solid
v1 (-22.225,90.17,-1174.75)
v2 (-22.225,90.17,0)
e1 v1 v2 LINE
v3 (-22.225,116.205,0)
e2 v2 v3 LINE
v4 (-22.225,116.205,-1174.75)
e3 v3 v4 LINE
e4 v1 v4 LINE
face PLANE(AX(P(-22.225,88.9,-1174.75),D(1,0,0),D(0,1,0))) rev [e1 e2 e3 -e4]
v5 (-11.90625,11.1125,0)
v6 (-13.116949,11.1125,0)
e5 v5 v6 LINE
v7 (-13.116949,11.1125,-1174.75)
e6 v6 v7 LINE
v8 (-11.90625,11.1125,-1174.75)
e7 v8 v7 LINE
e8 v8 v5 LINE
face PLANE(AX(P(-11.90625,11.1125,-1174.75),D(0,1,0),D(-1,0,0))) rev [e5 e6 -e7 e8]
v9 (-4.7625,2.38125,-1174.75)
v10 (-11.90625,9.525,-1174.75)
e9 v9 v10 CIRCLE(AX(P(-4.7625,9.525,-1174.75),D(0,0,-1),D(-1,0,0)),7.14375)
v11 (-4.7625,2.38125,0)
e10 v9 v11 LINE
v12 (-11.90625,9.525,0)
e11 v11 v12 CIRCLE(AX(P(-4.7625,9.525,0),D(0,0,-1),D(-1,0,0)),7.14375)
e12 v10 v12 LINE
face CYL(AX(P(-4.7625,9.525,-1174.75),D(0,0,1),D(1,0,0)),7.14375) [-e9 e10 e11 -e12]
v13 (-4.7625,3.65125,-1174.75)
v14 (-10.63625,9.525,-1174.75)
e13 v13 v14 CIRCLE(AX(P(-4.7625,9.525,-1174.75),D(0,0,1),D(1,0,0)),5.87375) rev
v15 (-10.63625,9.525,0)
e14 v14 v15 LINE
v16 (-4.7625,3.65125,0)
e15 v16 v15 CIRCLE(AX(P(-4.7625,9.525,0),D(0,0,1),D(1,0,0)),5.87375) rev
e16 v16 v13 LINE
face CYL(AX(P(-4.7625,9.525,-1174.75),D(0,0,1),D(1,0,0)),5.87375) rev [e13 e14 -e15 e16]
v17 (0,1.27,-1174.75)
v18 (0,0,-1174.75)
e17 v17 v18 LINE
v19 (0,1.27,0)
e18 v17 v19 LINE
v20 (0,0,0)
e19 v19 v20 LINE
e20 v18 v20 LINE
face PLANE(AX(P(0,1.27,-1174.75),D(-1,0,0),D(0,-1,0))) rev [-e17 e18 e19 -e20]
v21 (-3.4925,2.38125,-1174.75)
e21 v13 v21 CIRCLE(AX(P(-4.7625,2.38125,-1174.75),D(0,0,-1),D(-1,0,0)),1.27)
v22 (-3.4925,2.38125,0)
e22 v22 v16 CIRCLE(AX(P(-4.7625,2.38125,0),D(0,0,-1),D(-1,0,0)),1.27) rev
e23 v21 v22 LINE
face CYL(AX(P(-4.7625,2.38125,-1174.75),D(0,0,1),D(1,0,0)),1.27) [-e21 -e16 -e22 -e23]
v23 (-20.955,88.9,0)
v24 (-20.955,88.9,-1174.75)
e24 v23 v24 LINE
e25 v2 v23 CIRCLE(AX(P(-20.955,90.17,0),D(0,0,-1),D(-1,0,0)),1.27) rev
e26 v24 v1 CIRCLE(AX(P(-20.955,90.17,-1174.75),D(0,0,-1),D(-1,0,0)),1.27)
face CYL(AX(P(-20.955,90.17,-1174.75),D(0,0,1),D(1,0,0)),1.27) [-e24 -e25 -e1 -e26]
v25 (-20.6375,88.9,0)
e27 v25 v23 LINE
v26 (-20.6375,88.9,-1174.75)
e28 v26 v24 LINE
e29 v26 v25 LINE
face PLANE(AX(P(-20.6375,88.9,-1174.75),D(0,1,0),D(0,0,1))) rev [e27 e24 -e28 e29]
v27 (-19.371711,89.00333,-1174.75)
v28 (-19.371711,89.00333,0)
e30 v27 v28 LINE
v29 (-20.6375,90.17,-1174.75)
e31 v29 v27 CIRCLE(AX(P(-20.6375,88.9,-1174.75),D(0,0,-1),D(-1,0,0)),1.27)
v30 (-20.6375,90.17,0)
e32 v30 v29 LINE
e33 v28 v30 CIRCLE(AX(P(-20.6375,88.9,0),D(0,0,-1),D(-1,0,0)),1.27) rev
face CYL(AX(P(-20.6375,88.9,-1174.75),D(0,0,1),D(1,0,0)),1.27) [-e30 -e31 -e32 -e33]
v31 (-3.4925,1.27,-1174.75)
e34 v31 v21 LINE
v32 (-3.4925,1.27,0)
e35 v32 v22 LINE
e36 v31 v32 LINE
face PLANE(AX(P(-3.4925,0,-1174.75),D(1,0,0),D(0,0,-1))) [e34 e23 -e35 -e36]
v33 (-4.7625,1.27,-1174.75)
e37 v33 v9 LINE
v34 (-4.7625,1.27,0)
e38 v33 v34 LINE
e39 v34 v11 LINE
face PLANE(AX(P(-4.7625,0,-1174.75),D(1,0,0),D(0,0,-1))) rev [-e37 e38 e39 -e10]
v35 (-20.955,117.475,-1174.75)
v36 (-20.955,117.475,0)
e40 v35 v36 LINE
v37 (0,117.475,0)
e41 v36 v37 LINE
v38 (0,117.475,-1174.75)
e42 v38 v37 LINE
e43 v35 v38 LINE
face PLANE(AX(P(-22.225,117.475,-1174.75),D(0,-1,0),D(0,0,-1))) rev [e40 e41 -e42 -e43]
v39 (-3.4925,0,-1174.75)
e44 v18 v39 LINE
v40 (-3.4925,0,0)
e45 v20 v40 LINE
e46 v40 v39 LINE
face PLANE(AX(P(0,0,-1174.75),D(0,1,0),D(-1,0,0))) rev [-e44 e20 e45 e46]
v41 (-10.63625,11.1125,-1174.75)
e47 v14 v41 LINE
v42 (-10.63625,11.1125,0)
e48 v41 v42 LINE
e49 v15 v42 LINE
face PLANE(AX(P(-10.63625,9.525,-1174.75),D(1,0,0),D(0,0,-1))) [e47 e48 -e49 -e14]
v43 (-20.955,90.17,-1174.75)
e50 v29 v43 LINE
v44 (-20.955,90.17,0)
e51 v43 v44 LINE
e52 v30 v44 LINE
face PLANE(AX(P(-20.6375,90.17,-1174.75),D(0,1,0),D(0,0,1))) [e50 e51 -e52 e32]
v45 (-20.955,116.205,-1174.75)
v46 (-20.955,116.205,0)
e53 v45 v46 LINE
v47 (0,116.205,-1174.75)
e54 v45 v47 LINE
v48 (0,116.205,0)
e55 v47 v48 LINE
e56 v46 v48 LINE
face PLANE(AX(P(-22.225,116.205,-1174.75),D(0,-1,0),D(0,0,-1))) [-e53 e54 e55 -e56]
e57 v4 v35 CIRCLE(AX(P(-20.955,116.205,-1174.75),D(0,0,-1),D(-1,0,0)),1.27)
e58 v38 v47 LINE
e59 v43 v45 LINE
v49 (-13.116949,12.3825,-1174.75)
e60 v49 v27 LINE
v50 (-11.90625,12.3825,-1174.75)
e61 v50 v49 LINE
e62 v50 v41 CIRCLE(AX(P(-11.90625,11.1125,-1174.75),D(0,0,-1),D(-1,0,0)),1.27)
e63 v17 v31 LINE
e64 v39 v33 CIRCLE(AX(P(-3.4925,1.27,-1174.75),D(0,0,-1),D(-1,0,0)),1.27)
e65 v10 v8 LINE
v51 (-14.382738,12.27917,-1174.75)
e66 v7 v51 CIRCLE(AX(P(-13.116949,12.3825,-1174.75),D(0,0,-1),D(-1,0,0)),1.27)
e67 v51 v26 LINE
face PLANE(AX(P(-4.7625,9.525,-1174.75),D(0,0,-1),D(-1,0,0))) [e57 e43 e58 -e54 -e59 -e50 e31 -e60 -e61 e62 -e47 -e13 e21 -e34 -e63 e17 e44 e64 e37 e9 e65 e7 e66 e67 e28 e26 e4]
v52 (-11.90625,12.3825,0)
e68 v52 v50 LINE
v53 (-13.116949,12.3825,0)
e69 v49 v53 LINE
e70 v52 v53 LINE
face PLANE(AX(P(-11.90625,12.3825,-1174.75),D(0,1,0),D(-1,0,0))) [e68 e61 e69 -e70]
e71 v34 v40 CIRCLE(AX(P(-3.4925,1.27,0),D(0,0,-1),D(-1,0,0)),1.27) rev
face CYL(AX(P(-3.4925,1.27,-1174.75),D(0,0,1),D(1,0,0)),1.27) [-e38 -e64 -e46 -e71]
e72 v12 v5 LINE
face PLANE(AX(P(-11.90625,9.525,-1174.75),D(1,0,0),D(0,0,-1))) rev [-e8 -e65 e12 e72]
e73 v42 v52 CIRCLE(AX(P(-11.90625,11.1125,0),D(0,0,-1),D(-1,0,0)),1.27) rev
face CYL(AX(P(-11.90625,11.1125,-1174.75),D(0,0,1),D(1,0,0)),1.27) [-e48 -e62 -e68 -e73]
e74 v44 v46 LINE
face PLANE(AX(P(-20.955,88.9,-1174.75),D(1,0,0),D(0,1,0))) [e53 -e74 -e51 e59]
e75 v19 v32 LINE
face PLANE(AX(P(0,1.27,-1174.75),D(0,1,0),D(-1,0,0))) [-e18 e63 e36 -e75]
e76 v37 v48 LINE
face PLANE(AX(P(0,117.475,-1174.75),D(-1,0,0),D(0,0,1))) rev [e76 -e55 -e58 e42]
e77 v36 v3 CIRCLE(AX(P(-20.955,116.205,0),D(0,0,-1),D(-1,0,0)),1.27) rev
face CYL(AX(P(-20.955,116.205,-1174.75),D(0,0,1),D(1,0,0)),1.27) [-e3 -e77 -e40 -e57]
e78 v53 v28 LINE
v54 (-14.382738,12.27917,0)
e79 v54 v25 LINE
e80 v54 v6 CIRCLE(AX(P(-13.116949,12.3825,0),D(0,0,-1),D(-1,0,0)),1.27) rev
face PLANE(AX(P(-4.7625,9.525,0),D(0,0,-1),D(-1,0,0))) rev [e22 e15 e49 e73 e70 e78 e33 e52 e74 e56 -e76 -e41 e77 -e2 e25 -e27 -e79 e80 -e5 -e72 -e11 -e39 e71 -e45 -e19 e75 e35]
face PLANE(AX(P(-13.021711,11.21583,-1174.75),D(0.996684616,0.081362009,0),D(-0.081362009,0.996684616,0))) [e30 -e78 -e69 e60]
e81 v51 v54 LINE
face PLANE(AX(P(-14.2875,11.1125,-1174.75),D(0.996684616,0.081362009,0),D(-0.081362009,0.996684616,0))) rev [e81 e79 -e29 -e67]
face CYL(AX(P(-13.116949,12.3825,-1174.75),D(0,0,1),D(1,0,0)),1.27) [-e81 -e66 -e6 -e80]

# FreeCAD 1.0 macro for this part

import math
import FreeCAD as App
import Part
import Sketcher
from FreeCAD import Vector
Q = App.Units.Quantity


def edges_at(feature, points):
    """Names of the edges that pass closest to the given points."""
    edges = feature.Shape.Edges
    near = lambda p: min(range(len(edges)), key=lambda i: edges[i].distToShape(Part.Vertex(*p))[0])
    return sorted({f"Edge{near(p) + 1}" for p in points})

doc = App.newDocument("Part")
body = doc.addObject("PartDesign::Body", "Body")

# Sketch on XY plane
sketch1 = body.newObject("Sketcher::SketchObject", "Sketch")
sketch1.AttachmentSupport = (doc.getObject("XY_Plane"), [""])
sketch1.MapMode = "FlatFace"
sketch1.addGeometry(Part.LineSegment(Vector(-4.8, 0, 0), Vector(0, 0, 0)), False)
sketch1.addGeometry(Part.LineSegment(Vector(0, 0, 0), Vector(0, 1.3, 0)), False)
sketch1.addGeometry(Part.LineSegment(Vector(0, 1.3, 0), Vector(-3.5, 1.3, 0)), False)
sketch1.addGeometry(Part.LineSegment(Vector(-3.5, 1.3, 0), Vector(-3.5, 3.8, 0)), False)
sketch1.addGeometry(Part.ArcOfCircle(Part.Circle(Vector(-4.8, 9.5, 0), Vector(0, 0, 1), 5.9), math.radians(180), math.radians(282)), False)
sketch1.addGeometry(Part.LineSegment(Vector(-10.6, 9.5, 0), Vector(-10.6, 12.4, 0)), False)
sketch1.addGeometry(Part.LineSegment(Vector(-10.6, 12.4, 0), Vector(-13.1, 12.4, 0)), False)
sketch1.addGeometry(Part.LineSegment(Vector(-13.1, 12.4, 0), Vector(-19.5, 90.2, 0)), False)
sketch1.addGeometry(Part.LineSegment(Vector(-19.5, 90.2, 0), Vector(-21, 90.2, 0)), False)
sketch1.addGeometry(Part.LineSegment(Vector(-21, 90.2, 0), Vector(-21, 116.2, 0)), False)
sketch1.addGeometry(Part.LineSegment(Vector(-21, 116.2, 0), Vector(0, 116.2, 0)), False)
sketch1.addGeometry(Part.LineSegment(Vector(0, 116.2, 0), Vector(0, 117.5, 0)), False)
sketch1.addGeometry(Part.LineSegment(Vector(0, 117.5, 0), Vector(-22.2, 117.5, 0)), False)
sketch1.addGeometry(Part.LineSegment(Vector(-22.2, 117.5, 0), Vector(-22.2, 88.9, 0)), False)
sketch1.addGeometry(Part.LineSegment(Vector(-22.2, 88.9, 0), Vector(-20.6, 88.9, 0)), False)
sketch1.addGeometry(Part.LineSegment(Vector(-20.6, 88.9, 0), Vector(-14.3, 11.1, 0)), False)
sketch1.addGeometry(Part.LineSegment(Vector(-14.3, 11.1, 0), Vector(-11.9, 11.1, 0)), False)
sketch1.addGeometry(Part.LineSegment(Vector(-11.9, 11.1, 0), Vector(-11.9, 9.5, 0)), False)
sketch1.addGeometry(Part.ArcOfCircle(Part.Circle(Vector(-4.8, 9.5, 0), Vector(0, 0, 1), 7.1), math.radians(-180), math.radians(-90)), False)
sketch1.addGeometry(Part.LineSegment(Vector(-4.8, 2.4, 0), Vector(-4.8, 0, 0)), False)
sketch1.addConstraint(Sketcher.Constraint("Coincident", 0, 2, 1, 1))
sketch1.addConstraint(Sketcher.Constraint("Coincident", 1, 2, 2, 1))
sketch1.addConstraint(Sketcher.Constraint("Coincident", 2, 2, 3, 1))
sketch1.addConstraint(Sketcher.Constraint("Coincident", 3, 2, 4, 2))
sketch1.addConstraint(Sketcher.Constraint("Tangent", 4, 1, 5, 1))
sketch1.addConstraint(Sketcher.Constraint("Coincident", 5, 2, 6, 1))
sketch1.addConstraint(Sketcher.Constraint("Coincident", 6, 2, 7, 1))
sketch1.addConstraint(Sketcher.Constraint("Coincident", 7, 2, 8, 1))
sketch1.addConstraint(Sketcher.Constraint("Coincident", 8, 2, 9, 1))
sketch1.addConstraint(Sketcher.Constraint("Coincident", 9, 2, 10, 1))
sketch1.addConstraint(Sketcher.Constraint("Coincident", 10, 2, 11, 1))
sketch1.addConstraint(Sketcher.Constraint("Coincident", 11, 2, 12, 1))
sketch1.addConstraint(Sketcher.Constraint("Coincident", 12, 2, 13, 1))
sketch1.addConstraint(Sketcher.Constraint("Coincident", 13, 2, 14, 1))
sketch1.addConstraint(Sketcher.Constraint("Coincident", 14, 2, 15, 1))
sketch1.addConstraint(Sketcher.Constraint("Coincident", 15, 2, 16, 1))
sketch1.addConstraint(Sketcher.Constraint("Coincident", 16, 2, 17, 1))
sketch1.addConstraint(Sketcher.Constraint("Tangent", 17, 2, 18, 1))
sketch1.addConstraint(Sketcher.Constraint("Coincident", 18, 2, 19, 1))
sketch1.addConstraint(Sketcher.Constraint("Coincident", 19, 2, 0, 1))
sketch1.addConstraint(Sketcher.Constraint("Horizontal", 0))
sketch1.addConstraint(Sketcher.Constraint("Vertical", 1))
sketch1.addConstraint(Sketcher.Constraint("Horizontal", 2))
sketch1.addConstraint(Sketcher.Constraint("Vertical", 3))
sketch1.addConstraint(Sketcher.Constraint("Vertical", 5))
sketch1.addConstraint(Sketcher.Constraint("Horizontal", 6))
sketch1.addConstraint(Sketcher.Constraint("Horizontal", 8))
sketch1.addConstraint(Sketcher.Constraint("Vertical", 9))
sketch1.addConstraint(Sketcher.Constraint("Horizontal", 10))
sketch1.addConstraint(Sketcher.Constraint("Vertical", 11))
sketch1.addConstraint(Sketcher.Constraint("Horizontal", 12))
sketch1.addConstraint(Sketcher.Constraint("Vertical", 13))
sketch1.addConstraint(Sketcher.Constraint("Horizontal", 14))
sketch1.addConstraint(Sketcher.Constraint("Horizontal", 16))
sketch1.addConstraint(Sketcher.Constraint("Vertical", 17))
sketch1.addConstraint(Sketcher.Constraint("Vertical", 19))
sketch1.addConstraint(Sketcher.Constraint("Coincident", 0, 2, -1, 1))
sketch1.addConstraint(Sketcher.Constraint("Coincident", 18, 3, 4, 3))
sketch1.addConstraint(Sketcher.Constraint("PointOnObject", 10, 2, -2))
sketch1.addConstraint(Sketcher.Constraint("Parallel", 7, 15))
sketch1.addConstraint(Sketcher.Constraint("Vertical", 4, 3, 18, 2))
sketch1.addConstraint(Sketcher.Constraint("Equal", 1, 11))
sketch1.addConstraint(Sketcher.Constraint("Equal", 14, 17))
sketch1.addConstraint(Sketcher.Constraint("Equal", 16, 19))
sketch1.addConstraint(Sketcher.Constraint("Equal", 7, 15))
sketch1.addConstraint(Sketcher.Constraint("Radius", 18, Q("0.28125 in")))
sketch1.addConstraint(Sketcher.Constraint("DistanceY", 1, 1, 1, 2, Q("0.05 in")))
sketch1.addConstraint(Sketcher.Constraint("DistanceY", -1, 1, 13, 2, Q("3.5 in")))
sketch1.addConstraint(Sketcher.Constraint("DistanceY", 4, 1, 9, 2, Q("4.2 in")))
sketch1.addConstraint(Sketcher.Constraint("DistanceX", 0, 1, 0, 2, Q("0.1875 in")))
sketch1.addConstraint(Sketcher.Constraint("DistanceX", 10, 1, 10, 2, Q("0.825 in")))
sketch1.addConstraint(Sketcher.Constraint("DistanceX", 12, 2, 12, 1, Q("0.875 in")))
sketch1.addConstraint(Sketcher.Constraint("DistanceX", 14, 1, 14, 2, Q("0.0625 in")))
sketch1.addConstraint(Sketcher.Constraint("DistanceX", 16, 1, 16, 2, Q("0.09375 in")))
sketch1.addConstraint(Sketcher.Constraint("DistanceY", 9, 1, 9, 2, Q("1.025 in")))
sketch1.addConstraint(Sketcher.Constraint("DistanceX", 4, 3, 2, 2, Q("0.05 in")))
sketch1.addConstraint(Sketcher.Constraint("DistanceX", 16, 2, 5, 2, Q("0.05 in")))
sketch1.addConstraint(Sketcher.Constraint("DistanceX", 6, 2, 6, 1, 2.480699))
pad1 = body.newObject("PartDesign::Pad", "Pad")
pad1.Profile = sketch1
pad1.Length = Q("46.25 in")
pad1.Reversed = True
doc.recompute()

fillet = body.newObject("PartDesign::Fillet", "Fillet")
fillet.Base = (pad1, edges_at(pad1, [
    (-19.467, 90.17, -587.375),
    (-10.636, 12.383, -587.375),
    (-3.493, 3.79, -587.375),
    (-4.763, 0, -587.375),
    (-14.287, 11.113, -587.375),
    (-22.225, 88.9, -587.375),
    (-22.225, 117.475, -587.375),
]))
fillet.Radius = Q("0.05 in")

doc.recompute()
